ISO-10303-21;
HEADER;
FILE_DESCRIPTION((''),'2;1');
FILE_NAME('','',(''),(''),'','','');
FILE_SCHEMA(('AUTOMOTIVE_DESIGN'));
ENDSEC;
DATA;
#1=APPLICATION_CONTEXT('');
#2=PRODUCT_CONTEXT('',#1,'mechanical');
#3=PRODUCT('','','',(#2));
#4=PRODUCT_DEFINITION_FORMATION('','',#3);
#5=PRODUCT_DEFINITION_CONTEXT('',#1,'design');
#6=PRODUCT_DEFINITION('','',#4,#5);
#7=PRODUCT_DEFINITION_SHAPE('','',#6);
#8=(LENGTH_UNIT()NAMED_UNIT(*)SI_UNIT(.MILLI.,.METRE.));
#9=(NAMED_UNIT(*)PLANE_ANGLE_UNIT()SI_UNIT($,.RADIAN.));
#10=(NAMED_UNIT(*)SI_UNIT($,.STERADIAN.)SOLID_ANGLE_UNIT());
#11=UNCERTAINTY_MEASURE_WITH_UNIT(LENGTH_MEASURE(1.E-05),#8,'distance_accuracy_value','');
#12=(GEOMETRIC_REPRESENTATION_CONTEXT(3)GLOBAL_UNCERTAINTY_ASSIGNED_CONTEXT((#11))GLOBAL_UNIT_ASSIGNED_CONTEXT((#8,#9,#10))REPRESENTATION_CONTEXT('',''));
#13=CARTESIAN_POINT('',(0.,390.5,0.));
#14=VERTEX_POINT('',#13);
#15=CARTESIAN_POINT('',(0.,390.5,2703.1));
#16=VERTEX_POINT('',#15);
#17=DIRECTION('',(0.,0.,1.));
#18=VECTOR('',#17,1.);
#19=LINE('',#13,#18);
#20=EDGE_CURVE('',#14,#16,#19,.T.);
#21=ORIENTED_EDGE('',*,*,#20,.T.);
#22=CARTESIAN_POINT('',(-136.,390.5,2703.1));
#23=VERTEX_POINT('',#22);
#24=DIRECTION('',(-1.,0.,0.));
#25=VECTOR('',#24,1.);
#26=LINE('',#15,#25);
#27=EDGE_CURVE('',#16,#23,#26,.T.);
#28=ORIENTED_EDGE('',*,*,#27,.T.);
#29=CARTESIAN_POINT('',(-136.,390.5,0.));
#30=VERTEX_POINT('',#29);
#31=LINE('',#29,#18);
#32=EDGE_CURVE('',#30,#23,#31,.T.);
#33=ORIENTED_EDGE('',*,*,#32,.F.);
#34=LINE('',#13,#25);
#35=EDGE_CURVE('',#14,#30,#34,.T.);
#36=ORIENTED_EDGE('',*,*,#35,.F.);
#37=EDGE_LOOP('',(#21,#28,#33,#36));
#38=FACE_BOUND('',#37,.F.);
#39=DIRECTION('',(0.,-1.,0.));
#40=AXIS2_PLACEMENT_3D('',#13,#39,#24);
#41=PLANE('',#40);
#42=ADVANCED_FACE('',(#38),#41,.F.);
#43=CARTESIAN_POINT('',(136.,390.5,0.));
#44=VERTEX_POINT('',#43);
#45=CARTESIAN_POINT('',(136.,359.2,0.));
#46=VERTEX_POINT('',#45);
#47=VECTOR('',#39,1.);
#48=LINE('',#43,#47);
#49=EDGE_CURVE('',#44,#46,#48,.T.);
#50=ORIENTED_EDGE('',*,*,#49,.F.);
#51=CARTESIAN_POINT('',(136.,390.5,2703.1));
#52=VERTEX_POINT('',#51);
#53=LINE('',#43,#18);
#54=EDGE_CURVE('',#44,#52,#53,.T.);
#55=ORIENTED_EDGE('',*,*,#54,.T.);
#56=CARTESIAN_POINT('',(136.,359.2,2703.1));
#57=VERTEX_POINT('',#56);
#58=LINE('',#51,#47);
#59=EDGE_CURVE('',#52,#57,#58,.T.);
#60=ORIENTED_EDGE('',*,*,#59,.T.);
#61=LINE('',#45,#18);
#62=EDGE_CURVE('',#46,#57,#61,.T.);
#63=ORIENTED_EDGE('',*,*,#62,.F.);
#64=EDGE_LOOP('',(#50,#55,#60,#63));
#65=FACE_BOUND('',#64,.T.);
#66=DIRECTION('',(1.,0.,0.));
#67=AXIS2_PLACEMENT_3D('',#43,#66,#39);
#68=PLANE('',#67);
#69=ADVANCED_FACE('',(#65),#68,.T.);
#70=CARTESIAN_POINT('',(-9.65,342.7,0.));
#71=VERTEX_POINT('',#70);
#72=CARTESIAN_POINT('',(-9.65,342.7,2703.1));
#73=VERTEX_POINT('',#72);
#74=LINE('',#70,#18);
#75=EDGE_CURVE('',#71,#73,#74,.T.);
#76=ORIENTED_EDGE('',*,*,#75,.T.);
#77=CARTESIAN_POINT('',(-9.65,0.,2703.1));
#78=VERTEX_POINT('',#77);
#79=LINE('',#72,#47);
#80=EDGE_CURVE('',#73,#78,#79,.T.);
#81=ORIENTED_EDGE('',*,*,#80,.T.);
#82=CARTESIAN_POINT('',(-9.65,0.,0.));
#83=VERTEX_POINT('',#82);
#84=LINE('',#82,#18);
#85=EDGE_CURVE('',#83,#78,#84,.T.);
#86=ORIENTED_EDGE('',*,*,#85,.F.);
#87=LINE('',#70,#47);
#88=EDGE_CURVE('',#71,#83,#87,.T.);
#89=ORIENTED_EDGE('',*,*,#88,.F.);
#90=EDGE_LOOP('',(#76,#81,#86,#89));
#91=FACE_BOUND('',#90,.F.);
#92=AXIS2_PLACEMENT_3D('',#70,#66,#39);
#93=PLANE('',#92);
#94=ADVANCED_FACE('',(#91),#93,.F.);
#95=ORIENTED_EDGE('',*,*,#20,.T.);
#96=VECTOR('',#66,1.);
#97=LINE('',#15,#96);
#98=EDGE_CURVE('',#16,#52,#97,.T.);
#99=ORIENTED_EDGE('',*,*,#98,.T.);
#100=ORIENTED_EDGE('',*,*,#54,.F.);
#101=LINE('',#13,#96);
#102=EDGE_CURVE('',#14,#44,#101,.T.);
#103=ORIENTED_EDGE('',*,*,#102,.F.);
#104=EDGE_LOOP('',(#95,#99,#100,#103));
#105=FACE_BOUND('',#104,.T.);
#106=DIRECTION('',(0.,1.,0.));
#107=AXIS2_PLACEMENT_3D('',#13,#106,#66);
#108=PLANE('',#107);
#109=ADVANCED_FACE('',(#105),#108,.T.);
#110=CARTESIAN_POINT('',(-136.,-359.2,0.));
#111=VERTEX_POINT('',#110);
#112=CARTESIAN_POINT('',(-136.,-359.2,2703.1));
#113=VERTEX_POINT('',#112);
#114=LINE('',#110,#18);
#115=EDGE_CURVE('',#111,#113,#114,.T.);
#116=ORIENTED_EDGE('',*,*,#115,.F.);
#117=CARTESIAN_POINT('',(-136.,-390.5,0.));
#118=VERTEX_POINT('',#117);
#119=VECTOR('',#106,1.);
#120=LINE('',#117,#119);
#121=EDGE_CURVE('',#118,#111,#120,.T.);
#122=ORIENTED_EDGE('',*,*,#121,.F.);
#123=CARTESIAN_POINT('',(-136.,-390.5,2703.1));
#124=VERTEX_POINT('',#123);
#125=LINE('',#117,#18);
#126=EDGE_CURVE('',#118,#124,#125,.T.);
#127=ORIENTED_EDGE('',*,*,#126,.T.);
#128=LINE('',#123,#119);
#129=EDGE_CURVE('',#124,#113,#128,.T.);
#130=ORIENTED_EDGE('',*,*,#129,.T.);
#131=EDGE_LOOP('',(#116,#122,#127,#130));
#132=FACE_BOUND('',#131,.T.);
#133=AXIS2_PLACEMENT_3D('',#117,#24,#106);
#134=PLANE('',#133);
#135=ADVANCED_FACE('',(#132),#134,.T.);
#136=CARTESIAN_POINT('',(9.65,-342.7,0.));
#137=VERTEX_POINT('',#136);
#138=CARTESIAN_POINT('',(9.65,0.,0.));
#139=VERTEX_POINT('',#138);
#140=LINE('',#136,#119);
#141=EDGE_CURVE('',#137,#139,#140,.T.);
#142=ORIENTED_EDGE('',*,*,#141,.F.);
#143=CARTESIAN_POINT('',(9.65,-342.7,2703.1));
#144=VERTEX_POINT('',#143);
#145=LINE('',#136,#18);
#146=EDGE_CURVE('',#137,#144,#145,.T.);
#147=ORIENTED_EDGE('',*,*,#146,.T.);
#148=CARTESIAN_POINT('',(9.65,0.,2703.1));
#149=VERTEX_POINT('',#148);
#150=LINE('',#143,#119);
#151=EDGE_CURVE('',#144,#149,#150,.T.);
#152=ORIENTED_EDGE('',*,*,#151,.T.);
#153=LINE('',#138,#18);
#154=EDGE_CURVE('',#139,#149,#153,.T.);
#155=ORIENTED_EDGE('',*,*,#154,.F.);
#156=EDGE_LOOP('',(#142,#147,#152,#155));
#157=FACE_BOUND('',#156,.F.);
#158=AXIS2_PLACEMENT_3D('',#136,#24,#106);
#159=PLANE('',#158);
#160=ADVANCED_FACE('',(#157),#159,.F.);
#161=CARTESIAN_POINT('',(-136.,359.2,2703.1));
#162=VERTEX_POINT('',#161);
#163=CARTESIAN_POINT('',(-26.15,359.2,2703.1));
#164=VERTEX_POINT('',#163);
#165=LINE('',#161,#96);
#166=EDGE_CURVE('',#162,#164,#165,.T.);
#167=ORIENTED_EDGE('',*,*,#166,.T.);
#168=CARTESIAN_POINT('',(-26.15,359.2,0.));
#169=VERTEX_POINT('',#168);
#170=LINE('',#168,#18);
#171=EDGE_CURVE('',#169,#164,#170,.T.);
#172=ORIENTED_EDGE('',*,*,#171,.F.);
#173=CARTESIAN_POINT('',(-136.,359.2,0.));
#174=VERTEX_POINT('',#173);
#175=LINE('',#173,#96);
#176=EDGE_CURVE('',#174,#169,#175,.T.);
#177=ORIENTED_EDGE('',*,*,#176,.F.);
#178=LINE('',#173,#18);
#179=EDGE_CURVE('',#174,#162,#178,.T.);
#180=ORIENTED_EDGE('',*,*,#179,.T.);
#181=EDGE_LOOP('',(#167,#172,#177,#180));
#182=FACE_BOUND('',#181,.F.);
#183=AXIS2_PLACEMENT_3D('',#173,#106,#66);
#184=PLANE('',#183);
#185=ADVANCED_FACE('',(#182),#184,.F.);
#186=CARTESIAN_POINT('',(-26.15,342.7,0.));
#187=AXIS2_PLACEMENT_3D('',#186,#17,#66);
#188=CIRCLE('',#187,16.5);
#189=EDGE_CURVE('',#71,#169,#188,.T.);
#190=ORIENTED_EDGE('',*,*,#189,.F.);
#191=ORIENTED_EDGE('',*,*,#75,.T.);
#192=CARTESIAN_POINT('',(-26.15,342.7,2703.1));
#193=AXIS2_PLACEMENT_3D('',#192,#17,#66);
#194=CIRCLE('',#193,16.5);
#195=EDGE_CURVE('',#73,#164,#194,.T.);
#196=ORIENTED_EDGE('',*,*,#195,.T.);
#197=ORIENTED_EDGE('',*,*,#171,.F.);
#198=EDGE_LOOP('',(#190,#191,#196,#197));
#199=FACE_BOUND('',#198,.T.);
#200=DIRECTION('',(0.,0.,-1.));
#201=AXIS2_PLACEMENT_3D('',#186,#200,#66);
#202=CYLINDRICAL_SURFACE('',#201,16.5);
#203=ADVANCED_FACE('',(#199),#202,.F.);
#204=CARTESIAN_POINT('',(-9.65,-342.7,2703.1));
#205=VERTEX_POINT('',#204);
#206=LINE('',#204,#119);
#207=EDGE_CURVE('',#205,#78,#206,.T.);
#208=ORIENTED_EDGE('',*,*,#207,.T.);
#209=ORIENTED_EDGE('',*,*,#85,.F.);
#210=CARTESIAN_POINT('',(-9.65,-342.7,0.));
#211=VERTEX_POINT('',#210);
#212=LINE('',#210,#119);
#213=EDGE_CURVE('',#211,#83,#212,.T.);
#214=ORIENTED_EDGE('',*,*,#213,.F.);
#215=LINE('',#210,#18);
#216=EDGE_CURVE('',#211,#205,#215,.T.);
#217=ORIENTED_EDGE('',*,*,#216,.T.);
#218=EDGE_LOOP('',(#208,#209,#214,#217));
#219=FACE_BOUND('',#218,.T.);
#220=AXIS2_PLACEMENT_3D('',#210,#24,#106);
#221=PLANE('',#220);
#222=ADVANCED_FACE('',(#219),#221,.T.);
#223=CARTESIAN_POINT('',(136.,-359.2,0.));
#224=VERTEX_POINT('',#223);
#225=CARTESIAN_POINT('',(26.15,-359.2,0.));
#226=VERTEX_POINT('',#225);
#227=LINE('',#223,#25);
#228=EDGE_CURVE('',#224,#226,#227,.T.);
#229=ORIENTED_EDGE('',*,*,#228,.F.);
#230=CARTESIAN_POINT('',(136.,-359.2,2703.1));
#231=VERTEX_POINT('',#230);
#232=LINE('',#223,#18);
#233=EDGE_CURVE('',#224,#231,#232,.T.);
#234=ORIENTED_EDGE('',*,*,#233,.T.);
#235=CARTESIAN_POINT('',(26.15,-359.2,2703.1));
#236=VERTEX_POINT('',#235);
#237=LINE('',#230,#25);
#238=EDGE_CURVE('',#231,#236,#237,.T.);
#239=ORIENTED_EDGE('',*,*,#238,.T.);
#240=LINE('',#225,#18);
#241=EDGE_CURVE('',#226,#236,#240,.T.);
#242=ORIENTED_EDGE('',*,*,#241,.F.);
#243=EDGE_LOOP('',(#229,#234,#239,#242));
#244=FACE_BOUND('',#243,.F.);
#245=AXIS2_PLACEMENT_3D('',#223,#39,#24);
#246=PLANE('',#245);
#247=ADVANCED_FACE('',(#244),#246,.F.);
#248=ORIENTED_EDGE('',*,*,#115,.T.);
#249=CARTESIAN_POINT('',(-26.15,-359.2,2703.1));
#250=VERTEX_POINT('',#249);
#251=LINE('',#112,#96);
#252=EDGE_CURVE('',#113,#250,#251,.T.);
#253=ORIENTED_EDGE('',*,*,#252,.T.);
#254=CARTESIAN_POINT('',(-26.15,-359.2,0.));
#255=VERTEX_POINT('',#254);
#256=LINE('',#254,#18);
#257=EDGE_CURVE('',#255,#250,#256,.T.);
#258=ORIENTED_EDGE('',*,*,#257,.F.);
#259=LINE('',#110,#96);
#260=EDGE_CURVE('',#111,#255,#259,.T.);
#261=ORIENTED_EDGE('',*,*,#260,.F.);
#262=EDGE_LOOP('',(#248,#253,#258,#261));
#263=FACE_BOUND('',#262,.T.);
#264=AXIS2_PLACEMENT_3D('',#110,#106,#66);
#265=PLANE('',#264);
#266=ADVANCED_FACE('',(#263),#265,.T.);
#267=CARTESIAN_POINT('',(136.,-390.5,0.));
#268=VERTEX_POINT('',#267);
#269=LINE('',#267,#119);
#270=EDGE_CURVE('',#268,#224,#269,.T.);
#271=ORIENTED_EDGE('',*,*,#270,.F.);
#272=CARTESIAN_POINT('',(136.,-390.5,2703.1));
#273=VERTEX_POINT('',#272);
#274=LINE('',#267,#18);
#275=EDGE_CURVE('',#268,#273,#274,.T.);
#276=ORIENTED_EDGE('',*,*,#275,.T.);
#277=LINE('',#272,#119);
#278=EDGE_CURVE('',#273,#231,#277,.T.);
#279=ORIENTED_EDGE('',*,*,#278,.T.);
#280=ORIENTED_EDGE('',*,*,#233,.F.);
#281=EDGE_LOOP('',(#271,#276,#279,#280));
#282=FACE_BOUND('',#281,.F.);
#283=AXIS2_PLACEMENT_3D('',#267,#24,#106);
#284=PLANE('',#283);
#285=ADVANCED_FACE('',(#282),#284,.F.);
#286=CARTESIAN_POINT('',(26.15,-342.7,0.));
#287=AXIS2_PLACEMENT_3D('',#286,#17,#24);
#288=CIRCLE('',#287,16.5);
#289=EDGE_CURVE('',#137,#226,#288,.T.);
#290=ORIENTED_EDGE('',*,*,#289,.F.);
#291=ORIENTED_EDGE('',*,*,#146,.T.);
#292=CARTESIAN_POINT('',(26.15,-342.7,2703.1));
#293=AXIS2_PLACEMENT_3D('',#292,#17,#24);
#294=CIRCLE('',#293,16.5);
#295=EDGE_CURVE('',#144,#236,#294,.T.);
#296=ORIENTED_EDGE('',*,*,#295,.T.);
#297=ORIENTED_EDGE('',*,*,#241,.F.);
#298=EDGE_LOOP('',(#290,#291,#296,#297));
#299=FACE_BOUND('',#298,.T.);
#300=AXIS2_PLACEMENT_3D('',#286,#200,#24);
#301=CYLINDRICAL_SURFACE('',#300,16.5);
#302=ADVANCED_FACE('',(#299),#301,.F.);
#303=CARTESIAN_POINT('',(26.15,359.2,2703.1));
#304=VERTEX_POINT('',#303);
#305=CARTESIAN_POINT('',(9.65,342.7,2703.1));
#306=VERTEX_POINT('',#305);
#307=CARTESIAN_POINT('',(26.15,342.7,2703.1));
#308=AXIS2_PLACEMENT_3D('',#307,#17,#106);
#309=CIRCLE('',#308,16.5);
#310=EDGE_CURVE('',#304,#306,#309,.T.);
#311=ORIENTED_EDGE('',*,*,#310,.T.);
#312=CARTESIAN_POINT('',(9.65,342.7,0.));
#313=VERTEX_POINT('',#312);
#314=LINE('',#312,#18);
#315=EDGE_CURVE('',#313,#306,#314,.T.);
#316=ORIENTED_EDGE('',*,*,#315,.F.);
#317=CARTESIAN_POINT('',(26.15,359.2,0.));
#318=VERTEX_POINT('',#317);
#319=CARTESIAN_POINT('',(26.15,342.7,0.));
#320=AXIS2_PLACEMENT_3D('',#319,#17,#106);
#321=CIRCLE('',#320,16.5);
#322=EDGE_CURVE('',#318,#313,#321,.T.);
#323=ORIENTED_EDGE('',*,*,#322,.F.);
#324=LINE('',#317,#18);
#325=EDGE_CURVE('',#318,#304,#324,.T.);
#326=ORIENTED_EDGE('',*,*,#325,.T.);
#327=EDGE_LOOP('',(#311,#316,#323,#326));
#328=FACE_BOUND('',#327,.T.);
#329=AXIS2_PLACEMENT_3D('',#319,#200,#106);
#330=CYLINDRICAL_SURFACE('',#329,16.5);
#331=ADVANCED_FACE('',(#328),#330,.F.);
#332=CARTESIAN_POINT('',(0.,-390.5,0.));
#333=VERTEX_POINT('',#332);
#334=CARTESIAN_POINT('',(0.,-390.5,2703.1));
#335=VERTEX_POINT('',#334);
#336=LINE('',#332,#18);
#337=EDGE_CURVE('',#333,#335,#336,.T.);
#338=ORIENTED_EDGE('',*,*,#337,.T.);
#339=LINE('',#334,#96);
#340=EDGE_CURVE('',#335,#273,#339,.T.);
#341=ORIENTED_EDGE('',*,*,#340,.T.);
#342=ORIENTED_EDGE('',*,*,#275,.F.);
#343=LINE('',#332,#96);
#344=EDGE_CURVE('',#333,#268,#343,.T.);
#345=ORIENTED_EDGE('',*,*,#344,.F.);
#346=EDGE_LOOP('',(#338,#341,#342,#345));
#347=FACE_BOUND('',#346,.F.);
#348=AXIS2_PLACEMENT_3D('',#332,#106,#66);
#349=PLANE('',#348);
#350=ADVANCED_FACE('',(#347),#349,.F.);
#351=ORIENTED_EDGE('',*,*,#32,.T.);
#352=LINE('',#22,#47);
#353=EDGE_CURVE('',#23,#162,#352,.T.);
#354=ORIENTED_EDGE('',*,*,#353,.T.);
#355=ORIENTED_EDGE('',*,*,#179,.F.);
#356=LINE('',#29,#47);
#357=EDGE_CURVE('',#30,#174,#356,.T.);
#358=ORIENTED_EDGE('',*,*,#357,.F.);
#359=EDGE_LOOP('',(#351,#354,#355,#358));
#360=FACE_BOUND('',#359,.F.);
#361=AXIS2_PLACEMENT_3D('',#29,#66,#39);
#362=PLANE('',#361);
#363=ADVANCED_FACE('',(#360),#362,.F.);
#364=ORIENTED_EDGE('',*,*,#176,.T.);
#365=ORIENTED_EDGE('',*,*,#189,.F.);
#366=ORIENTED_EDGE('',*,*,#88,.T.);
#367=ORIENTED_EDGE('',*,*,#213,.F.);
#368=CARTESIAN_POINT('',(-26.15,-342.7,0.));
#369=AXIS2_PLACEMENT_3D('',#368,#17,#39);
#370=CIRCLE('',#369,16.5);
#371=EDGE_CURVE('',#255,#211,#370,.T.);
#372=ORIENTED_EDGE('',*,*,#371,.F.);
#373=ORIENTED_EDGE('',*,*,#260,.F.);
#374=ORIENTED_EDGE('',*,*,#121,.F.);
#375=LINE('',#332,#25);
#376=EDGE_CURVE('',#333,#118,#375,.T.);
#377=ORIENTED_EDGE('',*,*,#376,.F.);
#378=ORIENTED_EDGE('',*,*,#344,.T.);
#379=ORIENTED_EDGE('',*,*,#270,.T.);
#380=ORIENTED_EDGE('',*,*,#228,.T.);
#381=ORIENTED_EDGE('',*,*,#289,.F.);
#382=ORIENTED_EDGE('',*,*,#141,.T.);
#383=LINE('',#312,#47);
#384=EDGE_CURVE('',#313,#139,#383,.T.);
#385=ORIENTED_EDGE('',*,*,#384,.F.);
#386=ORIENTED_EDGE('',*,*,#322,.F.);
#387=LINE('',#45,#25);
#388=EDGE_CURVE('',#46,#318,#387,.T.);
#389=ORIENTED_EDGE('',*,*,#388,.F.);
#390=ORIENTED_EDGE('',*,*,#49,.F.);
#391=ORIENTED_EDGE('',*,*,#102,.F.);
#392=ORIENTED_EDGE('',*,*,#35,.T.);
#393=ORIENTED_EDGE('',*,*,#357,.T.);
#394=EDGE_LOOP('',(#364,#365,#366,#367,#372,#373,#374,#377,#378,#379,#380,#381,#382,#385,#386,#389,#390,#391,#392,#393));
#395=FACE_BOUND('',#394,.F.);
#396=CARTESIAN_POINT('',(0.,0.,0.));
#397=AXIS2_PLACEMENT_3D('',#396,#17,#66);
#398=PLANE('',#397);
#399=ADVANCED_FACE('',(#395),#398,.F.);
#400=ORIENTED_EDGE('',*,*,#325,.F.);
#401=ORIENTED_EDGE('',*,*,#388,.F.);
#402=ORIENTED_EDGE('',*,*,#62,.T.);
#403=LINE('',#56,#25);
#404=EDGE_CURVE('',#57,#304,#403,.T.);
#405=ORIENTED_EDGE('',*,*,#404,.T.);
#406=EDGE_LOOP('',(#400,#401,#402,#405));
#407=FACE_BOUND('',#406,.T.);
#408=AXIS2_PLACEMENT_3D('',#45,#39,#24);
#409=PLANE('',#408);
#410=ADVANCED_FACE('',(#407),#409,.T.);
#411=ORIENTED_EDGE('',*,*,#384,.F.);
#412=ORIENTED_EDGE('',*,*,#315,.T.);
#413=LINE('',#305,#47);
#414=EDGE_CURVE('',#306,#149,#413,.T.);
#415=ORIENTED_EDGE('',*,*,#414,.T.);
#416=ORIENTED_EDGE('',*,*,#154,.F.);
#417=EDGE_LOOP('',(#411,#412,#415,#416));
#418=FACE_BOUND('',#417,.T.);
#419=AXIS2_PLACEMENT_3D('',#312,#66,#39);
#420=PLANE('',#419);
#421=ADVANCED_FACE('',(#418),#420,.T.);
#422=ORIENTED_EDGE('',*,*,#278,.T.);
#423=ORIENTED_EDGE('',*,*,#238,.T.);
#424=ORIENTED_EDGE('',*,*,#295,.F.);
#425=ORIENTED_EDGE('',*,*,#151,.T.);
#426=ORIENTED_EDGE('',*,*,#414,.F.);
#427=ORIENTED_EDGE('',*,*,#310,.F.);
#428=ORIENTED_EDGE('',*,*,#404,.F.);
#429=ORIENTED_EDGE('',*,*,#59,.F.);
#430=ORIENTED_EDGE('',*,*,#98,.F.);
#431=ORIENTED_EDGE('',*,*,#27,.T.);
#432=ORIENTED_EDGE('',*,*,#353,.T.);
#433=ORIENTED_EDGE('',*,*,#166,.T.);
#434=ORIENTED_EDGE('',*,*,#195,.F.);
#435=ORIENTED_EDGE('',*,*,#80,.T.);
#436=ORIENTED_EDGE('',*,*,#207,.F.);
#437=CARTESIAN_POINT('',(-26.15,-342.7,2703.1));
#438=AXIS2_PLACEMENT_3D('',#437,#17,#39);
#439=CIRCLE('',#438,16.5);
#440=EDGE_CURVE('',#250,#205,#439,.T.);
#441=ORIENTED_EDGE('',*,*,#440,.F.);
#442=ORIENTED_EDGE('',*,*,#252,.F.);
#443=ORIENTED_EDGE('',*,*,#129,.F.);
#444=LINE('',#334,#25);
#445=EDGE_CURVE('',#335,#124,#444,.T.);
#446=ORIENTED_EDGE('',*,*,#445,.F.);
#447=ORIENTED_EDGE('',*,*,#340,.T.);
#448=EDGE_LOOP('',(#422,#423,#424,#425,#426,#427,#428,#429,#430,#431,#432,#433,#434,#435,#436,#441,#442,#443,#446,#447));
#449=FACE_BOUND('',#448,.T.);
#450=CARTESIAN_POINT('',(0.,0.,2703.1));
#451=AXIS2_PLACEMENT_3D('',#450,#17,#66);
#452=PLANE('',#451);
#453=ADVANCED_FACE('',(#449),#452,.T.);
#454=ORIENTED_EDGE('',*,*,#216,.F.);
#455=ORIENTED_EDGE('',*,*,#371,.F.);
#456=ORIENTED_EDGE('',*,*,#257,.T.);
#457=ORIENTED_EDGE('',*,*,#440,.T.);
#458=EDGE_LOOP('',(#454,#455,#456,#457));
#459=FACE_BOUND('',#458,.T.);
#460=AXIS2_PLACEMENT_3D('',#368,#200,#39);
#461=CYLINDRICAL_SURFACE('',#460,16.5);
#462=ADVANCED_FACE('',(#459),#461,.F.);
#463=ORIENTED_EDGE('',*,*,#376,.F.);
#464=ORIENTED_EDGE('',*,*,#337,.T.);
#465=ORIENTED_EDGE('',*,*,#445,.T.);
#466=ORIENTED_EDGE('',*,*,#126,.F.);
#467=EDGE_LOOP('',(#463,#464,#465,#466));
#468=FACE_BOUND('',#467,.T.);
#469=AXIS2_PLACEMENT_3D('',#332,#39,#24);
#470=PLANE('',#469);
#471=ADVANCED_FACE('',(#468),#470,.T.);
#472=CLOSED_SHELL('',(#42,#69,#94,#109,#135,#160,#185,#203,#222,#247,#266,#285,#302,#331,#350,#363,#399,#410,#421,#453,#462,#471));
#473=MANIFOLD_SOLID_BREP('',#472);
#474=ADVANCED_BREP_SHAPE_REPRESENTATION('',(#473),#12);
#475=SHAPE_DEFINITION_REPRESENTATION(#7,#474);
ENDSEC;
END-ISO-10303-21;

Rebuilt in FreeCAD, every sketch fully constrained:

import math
import FreeCAD as App
import Part
import Sketcher
Q = App.Units.Quantity

doc = App.newDocument("Part")
params = doc.addObject("Spreadsheet::Sheet", "Params")
for row, (alias, value) in enumerate([
    ("sketch1_radius", "16.5 mm"),
    ("sketch1_height", "31.3 mm"),
    ("pad1_length", "2703.1 mm"),
], start=1):
    params.set(f"A{row}", alias)
    params.set(f"B{row}", "=" + value)
    params.setAlias(f"B{row}", alias)

body = doc.addObject("PartDesign::Body", "Body")

# Sketch on XY plane
sketch1 = doc.addObject("Sketcher::SketchObject", "Sketch")
body.addObject(sketch1)
sketch1.AttachmentSupport = (doc.XY_Plane, [""])
sketch1.MapMode = "FlatFace"
sketch1.addGeometry([
    Part.LineSegment(App.Vector(-136, -359, 0), App.Vector(-136, -390, 0)),  # 0
    Part.LineSegment(App.Vector(-136, -390, 0), App.Vector(136, -390, 0)),  # 1
    Part.LineSegment(App.Vector(136, -390, 0), App.Vector(136, -359, 0)),  # 2
    Part.LineSegment(App.Vector(136, -359, 0), App.Vector(26, -359, 0)),  # 3
    Part.ArcOfCircle(Part.Circle(App.Vector(26, -343, 0), App.Vector(0, 0, 1), 16), math.radians(180), math.radians(270)),  # 4
    Part.LineSegment(App.Vector(10, -343, 0), App.Vector(10, 343, 0)),  # 5
    Part.ArcOfCircle(Part.Circle(App.Vector(26, 343, 0), App.Vector(0, 0, 1), 16), math.radians(90), math.radians(180)),  # 6
    Part.LineSegment(App.Vector(26, 359, 0), App.Vector(136, 359, 0)),  # 7
    Part.LineSegment(App.Vector(136, 359, 0), App.Vector(136, 390, 0)),  # 8
    Part.LineSegment(App.Vector(136, 390, 0), App.Vector(-136, 390, 0)),  # 9
    Part.LineSegment(App.Vector(-136, 390, 0), App.Vector(-136, 359, 0)),  # 10
    Part.LineSegment(App.Vector(-136, 359, 0), App.Vector(-26, 359, 0)),  # 11
    Part.ArcOfCircle(Part.Circle(App.Vector(-26, 343, 0), App.Vector(0, 0, 1), 16), math.radians(0), math.radians(90)),  # 12
    Part.LineSegment(App.Vector(-10, 343, 0), App.Vector(-10, -343, 0)),  # 13
    Part.ArcOfCircle(Part.Circle(App.Vector(-26, -343, 0), App.Vector(0, 0, 1), 16), math.radians(-90), math.radians(0)),  # 14
    Part.LineSegment(App.Vector(-26, -359, 0), App.Vector(-136, -359, 0)),  # 15
], False)
sketch1.addConstraint([
    Sketcher.Constraint("Coincident", 0, 2, 1, 1),
    Sketcher.Constraint("Coincident", 1, 2, 2, 1),
    Sketcher.Constraint("Coincident", 2, 2, 3, 1),
    Sketcher.Constraint("Tangent", 3, 2, 4, 2),
    Sketcher.Constraint("Tangent", 4, 1, 5, 1),
    Sketcher.Constraint("Tangent", 5, 2, 6, 2),
    Sketcher.Constraint("Tangent", 6, 1, 7, 1),
    Sketcher.Constraint("Coincident", 7, 2, 8, 1),
    Sketcher.Constraint("Coincident", 8, 2, 9, 1),
    Sketcher.Constraint("Coincident", 9, 2, 10, 1),
    Sketcher.Constraint("Coincident", 10, 2, 11, 1),
    Sketcher.Constraint("Tangent", 11, 2, 12, 2),
    Sketcher.Constraint("Tangent", 12, 1, 13, 1),
    Sketcher.Constraint("Tangent", 13, 2, 14, 2),
    Sketcher.Constraint("Tangent", 14, 1, 15, 1),
    Sketcher.Constraint("Coincident", 15, 2, 0, 1),
    Sketcher.Constraint("Vertical", 0),
    Sketcher.Constraint("Horizontal", 1),
    Sketcher.Constraint("Vertical", 2),
    Sketcher.Constraint("Horizontal", 3),
    Sketcher.Constraint("Vertical", 5),
    Sketcher.Constraint("Horizontal", 7),
    Sketcher.Constraint("Vertical", 8),
    Sketcher.Constraint("Horizontal", 9),
    Sketcher.Constraint("Vertical", 10),
    Sketcher.Constraint("Horizontal", 11),
    Sketcher.Constraint("Vertical", 13),
    Sketcher.Constraint("Horizontal", 15),
    Sketcher.Constraint("Equal", 4, 6),
    Sketcher.Constraint("Equal", 6, 12),
    Sketcher.Constraint("Equal", 12, 14),
    Sketcher.Constraint("Symmetric", 4, 3, 12, 3, -1, 1),
    Sketcher.Constraint("Symmetric", 0, 2, 8, 2, -1, 1),
    Sketcher.Constraint("Symmetric", 7, 2, 10, 2, -2),
    Sketcher.Constraint("Symmetric", 2, 2, 15, 2, -2),
    Sketcher.Constraint("Radius", 4, Q("16.5 mm")),
    Sketcher.Constraint("DistanceY", 0, 2, 0, 1, Q("31.3 mm")),
    Sketcher.Constraint("DistanceX", 0, 2, -1, 1, Q("136 mm")),
    Sketcher.Constraint("DistanceY", 0, 2, -1, 1, Q("390.5 mm")),
    Sketcher.Constraint("DistanceX", -1, 1, 4, 1, Q("9.65 mm")),
])
sketch1.setExpression("Constraints[35]", "Params.sketch1_radius")
sketch1.setExpression("Constraints[36]", "Params.sketch1_height")
pad1 = doc.addObject("PartDesign::Pad", "Pad")
body.addObject(pad1)
pad1.Profile = sketch1
pad1.setExpression("Length", "Params.pad1_length")

doc.recompute()
